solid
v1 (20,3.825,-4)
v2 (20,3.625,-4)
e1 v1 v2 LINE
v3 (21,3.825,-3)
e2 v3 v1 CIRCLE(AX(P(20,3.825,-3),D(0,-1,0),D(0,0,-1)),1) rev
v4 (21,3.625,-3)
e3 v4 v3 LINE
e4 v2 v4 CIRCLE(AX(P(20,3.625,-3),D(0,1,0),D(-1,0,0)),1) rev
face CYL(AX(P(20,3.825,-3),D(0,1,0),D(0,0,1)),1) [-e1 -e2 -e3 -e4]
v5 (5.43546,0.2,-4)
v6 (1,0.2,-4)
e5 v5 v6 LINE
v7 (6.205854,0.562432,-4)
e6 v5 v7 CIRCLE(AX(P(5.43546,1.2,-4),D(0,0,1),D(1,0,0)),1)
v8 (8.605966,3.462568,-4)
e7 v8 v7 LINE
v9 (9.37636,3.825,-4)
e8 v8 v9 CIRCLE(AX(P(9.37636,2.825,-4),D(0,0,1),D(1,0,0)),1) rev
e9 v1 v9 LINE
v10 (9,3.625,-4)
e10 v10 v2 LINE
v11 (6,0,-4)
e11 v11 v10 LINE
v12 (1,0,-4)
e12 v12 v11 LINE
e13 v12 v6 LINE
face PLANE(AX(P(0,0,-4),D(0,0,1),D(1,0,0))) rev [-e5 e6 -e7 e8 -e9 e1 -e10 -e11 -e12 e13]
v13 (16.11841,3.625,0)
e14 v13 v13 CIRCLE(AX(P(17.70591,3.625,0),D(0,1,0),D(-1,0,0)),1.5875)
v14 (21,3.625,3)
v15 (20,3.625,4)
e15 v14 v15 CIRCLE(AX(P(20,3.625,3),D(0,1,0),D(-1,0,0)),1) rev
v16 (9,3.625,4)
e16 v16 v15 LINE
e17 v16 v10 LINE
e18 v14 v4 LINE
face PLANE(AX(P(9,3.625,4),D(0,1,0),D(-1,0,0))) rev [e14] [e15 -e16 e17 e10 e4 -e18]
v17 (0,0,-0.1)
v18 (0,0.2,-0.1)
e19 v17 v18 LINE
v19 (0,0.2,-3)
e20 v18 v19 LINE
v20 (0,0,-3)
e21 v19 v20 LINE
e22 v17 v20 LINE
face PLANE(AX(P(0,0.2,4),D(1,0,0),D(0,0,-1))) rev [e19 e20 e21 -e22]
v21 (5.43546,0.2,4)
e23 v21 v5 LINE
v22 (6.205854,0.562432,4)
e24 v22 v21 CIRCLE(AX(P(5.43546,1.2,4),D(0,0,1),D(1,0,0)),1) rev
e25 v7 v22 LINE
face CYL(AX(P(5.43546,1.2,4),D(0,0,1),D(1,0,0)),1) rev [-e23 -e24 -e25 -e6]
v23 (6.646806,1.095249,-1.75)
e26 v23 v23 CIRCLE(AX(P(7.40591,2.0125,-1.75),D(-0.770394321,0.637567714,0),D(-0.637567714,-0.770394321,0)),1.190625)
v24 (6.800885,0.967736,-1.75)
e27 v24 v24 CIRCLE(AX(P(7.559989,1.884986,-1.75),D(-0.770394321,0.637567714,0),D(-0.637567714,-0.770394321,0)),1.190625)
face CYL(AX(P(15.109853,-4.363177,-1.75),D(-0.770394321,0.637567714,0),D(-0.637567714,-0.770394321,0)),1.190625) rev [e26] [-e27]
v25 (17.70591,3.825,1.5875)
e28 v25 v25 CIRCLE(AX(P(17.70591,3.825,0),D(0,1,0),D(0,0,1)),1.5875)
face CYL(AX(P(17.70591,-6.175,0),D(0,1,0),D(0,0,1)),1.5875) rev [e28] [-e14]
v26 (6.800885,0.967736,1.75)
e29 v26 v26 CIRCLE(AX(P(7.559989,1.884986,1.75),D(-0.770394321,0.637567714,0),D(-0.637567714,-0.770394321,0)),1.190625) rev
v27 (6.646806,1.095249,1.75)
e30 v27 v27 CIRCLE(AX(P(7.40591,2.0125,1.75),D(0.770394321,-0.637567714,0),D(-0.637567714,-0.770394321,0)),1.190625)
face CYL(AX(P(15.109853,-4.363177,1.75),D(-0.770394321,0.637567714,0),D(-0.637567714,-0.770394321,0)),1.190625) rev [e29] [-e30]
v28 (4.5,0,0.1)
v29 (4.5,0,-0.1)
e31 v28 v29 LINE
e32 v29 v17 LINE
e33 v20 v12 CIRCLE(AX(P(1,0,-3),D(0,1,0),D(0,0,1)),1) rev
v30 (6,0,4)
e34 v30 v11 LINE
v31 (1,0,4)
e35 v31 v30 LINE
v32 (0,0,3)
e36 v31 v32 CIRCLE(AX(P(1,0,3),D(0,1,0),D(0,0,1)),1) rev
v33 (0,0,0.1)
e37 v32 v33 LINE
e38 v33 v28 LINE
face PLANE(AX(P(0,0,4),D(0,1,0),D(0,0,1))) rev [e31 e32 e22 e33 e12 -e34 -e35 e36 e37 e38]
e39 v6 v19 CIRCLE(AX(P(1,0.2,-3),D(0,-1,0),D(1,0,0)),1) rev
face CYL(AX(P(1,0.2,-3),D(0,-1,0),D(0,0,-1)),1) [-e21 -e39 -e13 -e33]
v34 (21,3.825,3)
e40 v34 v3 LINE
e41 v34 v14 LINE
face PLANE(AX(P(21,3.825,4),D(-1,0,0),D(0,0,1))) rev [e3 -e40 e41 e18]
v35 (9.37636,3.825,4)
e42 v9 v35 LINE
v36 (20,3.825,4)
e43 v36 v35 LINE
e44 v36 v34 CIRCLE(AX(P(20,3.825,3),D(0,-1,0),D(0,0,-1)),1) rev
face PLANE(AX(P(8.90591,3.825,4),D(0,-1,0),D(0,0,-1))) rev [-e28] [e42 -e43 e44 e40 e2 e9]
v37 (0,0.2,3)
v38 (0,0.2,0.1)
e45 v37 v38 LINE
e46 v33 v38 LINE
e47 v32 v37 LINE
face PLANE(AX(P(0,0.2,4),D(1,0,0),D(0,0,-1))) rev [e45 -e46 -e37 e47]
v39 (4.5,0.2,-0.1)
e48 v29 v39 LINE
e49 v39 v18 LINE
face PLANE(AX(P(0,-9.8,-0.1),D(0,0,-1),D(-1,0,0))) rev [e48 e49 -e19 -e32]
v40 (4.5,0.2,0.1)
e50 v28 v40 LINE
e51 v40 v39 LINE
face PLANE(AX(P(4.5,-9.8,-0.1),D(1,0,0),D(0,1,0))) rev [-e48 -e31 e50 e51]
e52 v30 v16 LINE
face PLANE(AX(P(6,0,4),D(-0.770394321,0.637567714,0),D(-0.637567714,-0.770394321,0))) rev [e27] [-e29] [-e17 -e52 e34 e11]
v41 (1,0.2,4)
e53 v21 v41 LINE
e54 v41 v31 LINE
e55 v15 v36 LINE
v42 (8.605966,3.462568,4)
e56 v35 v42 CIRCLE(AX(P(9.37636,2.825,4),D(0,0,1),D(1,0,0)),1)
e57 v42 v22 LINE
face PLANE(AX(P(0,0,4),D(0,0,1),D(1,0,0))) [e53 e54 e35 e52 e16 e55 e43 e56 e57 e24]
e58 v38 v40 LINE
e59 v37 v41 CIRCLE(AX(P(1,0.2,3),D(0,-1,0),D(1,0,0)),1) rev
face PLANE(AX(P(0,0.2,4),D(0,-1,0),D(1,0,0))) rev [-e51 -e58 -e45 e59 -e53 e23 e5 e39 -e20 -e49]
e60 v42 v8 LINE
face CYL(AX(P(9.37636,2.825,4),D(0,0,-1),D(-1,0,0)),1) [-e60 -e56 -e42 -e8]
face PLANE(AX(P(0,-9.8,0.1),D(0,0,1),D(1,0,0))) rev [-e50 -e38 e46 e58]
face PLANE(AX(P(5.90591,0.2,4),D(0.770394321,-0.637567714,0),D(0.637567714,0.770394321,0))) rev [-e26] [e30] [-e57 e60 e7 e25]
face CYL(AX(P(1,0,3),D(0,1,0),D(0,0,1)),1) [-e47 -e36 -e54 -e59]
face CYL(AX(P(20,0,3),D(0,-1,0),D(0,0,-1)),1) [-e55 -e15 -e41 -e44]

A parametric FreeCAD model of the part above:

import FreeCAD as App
import Part
import Sketcher
Q = App.Units.Quantity


def edges_at(feature, points):
    """Names of the edges that pass closest to the given points."""
    edges = feature.Shape.Edges
    near = lambda p: min(range(len(edges)), key=lambda i: edges[i].distToShape(Part.Vertex(*p))[0])
    return sorted({f"Edge{near(p) + 1}" for p in points})

doc = App.newDocument("Part")
body = doc.addObject("PartDesign::Body", "Body")

# Sketch on XY plane
sketch1 = doc.addObject("Sketcher::SketchObject", "Sketch")
body.addObject(sketch1)
sketch1.AttachmentSupport = (doc.XY_Plane, [""])
sketch1.MapMode = "FlatFace"
sketch1.addGeometry([
    Part.LineSegment(App.Vector(0, 0, 0), App.Vector(6, 0, 0)),  # 0
    Part.LineSegment(App.Vector(6, 0, 0), App.Vector(9, 3.62, 0)),  # 1
    Part.LineSegment(App.Vector(9, 3.62, 0), App.Vector(21, 3.62, 0)),  # 2
    Part.LineSegment(App.Vector(21, 3.62, 0), App.Vector(21, 3.83, 0)),  # 3
    Part.LineSegment(App.Vector(21, 3.83, 0), App.Vector(8.91, 3.83, 0)),  # 4
    Part.LineSegment(App.Vector(8.91, 3.83, 0), App.Vector(5.91, 0.2, 0)),  # 5
    Part.LineSegment(App.Vector(5.91, 0.2, 0), App.Vector(0, 0.2, 0)),  # 6
    Part.LineSegment(App.Vector(0, 0.2, 0), App.Vector(0, 0, 0)),  # 7
], False)
sketch1.addConstraint([
    Sketcher.Constraint("Coincident", 0, 2, 1, 1),
    Sketcher.Constraint("Coincident", 1, 2, 2, 1),
    Sketcher.Constraint("Coincident", 2, 2, 3, 1),
    Sketcher.Constraint("Coincident", 3, 2, 4, 1),
    Sketcher.Constraint("Coincident", 4, 2, 5, 1),
    Sketcher.Constraint("Coincident", 5, 2, 6, 1),
    Sketcher.Constraint("Coincident", 6, 2, 7, 1),
    Sketcher.Constraint("Coincident", 7, 2, 0, 1),
    Sketcher.Constraint("Horizontal", 0),
    Sketcher.Constraint("Horizontal", 2),
    Sketcher.Constraint("Vertical", 3),
    Sketcher.Constraint("Horizontal", 4),
    Sketcher.Constraint("Horizontal", 6),
    Sketcher.Constraint("Vertical", 7),
    Sketcher.Constraint("Coincident", 7, 2, -1, 1),
    Sketcher.Constraint("Parallel", 1, 5),
    Sketcher.Constraint("Equal", 3, 7),
    Sketcher.Constraint("DistanceX", 0, 1, 0, 2, Q("6 mm")),
    Sketcher.Constraint("DistanceX", 2, 1, 2, 2, Q("12 mm")),
    Sketcher.Constraint("DistanceY", 3, 1, 3, 2, Q("0.2 mm")),
    Sketcher.Constraint("DistanceX", -1, 1, 1, 2, Q("9 mm")),
    Sketcher.Constraint("DistanceY", -1, 1, 1, 2, Q("3.625 mm")),
    Sketcher.Constraint("DistanceX", 4, 2, 4, 1, Q("12.09409 mm")),
])
pad1 = doc.addObject("PartDesign::Pad", "Pad")
body.addObject(pad1)
pad1.Profile = sketch1
pad1.Length = 8
pad1.Midplane = True

# Sketch on XZ plane
sketch2 = doc.addObject("Sketcher::SketchObject", "Sketch001")
body.addObject(sketch2)
sketch2.AttachmentSupport = (doc.XZ_Plane, [""])
sketch2.MapMode = "FlatFace"
sketch2.AttachmentOffset = App.Placement(App.Vector(0, 0, -3.825), App.Rotation())
sketch2.addGeometry(Part.Circle(App.Vector(17.7, 0, 0), App.Vector(0, 0, 1), 1.6), False)
sketch2.addConstraint([
    Sketcher.Constraint("PointOnObject", 0, 3, -1),
    Sketcher.Constraint("Diameter", 0, Q("3.175 mm")),
    Sketcher.Constraint("DistanceX", -1, 1, 0, 3, Q("17.70591 mm")),
])
pocket1 = doc.addObject("PartDesign::Pocket", "Pocket")
body.addObject(pocket1)
pocket1.Profile = sketch2
pocket1.Length = 10
pocket1.Reversed = True
doc.recompute()

fillet = doc.addObject("PartDesign::Fillet", "Fillet")
body.addObject(fillet)
fillet.Base = (pocket1, edges_at(pocket1, [
    (0, 0.1, -4),
    (21, 3.725, 4),
    (0, 0.1, 4),
    (21, 3.725, -4),
]))
fillet.Radius = 1

# Sketch on XZ plane
sketch3 = doc.addObject("Sketcher::SketchObject", "Sketch002")
body.addObject(sketch3)
sketch3.AttachmentSupport = (doc.XZ_Plane, [""])
sketch3.MapMode = "FlatFace"
sketch3.AttachmentOffset = App.Placement(App.Vector(0, 0, -0.2), App.Rotation())
sketch3.addGeometry([
    Part.LineSegment(App.Vector(0, -0.1, 0), App.Vector(0, 0.1, 0)),
    Part.LineSegment(App.Vector(0, 0.1, 0), App.Vector(4.5, 0.1, 0)),
    Part.LineSegment(App.Vector(4.5, 0.1, 0), App.Vector(4.5, -0.1, 0)),
    Part.LineSegment(App.Vector(4.5, -0.1, 0), App.Vector(0, -0.1, 0)),
], False)
sketch3.addConstraint([
    Sketcher.Constraint("Coincident", 0, 2, 1, 1),
    Sketcher.Constraint("Coincident", 1, 2, 2, 1),
    Sketcher.Constraint("Coincident", 2, 2, 3, 1),
    Sketcher.Constraint("Coincident", 3, 2, 0, 1),
    Sketcher.Constraint("Vertical", 0),
    Sketcher.Constraint("Horizontal", 1),
    Sketcher.Constraint("Vertical", 2),
    Sketcher.Constraint("Horizontal", 3),
    Sketcher.Constraint("Symmetric", 0, 2, 3, 2, -1, 1),
    Sketcher.Constraint("DistanceX", 1, 1, 1, 2, Q("4.5 mm")),
    Sketcher.Constraint("DistanceY", 0, 1, 0, 2, Q("0.2 mm")),
])
pocket2 = doc.addObject("PartDesign::Pocket", "Pocket001")
body.addObject(pocket2)
pocket2.Profile = sketch3
pocket2.Length = 10
pocket2.Reversed = True
doc.recompute()

fillet2 = doc.addObject("PartDesign::Fillet", "Fillet001")
body.addObject(fillet2)
fillet2.Base = (pocket2, edges_at(pocket2, [(5.906, 0.2, 0), (8.906, 3.825, 0)]))
fillet2.Radius = 1

# Sketch on an angled plane
sketch4 = doc.addObject("Sketcher::SketchObject", "Sketch003")
body.addObject(sketch4)
sketch4.Placement = App.Placement(App.Vector(3.406966, -2.819558, 0), App.Rotation(App.Vector(0, 0, 1), App.Vector(0.637567714, 0.770394321, 0), App.Vector(-0.770394321, 0.637567714, 0), "ZXY"))
sketch4.addGeometry(Part.Circle(App.Vector(-1.8, 6.3, 0), App.Vector(0, 0, 1), 1.2), False)
sketch4.addConstraint([
    Sketcher.Constraint("Diameter", 0, Q("2.38125 mm")),
    Sketcher.Constraint("DistanceX", 0, 3, -1, 1, Q("1.75 mm")),
    Sketcher.Constraint("DistanceY", -1, 1, 0, 3, Q("6.272188 mm")),
])
pocket3 = doc.addObject("PartDesign::Pocket", "Pocket002")
body.addObject(pocket3)
pocket3.Profile = sketch4
pocket3.Length = 10
doc.recompute()

mirrored = doc.addObject("PartDesign::Mirrored", "Mirrored")
body.addObject(mirrored)
mirrored.Originals = [pocket3]
mirrored.MirrorPlane = (doc.XY_Plane, [""])
body.Tip = mirrored

doc.recompute()
